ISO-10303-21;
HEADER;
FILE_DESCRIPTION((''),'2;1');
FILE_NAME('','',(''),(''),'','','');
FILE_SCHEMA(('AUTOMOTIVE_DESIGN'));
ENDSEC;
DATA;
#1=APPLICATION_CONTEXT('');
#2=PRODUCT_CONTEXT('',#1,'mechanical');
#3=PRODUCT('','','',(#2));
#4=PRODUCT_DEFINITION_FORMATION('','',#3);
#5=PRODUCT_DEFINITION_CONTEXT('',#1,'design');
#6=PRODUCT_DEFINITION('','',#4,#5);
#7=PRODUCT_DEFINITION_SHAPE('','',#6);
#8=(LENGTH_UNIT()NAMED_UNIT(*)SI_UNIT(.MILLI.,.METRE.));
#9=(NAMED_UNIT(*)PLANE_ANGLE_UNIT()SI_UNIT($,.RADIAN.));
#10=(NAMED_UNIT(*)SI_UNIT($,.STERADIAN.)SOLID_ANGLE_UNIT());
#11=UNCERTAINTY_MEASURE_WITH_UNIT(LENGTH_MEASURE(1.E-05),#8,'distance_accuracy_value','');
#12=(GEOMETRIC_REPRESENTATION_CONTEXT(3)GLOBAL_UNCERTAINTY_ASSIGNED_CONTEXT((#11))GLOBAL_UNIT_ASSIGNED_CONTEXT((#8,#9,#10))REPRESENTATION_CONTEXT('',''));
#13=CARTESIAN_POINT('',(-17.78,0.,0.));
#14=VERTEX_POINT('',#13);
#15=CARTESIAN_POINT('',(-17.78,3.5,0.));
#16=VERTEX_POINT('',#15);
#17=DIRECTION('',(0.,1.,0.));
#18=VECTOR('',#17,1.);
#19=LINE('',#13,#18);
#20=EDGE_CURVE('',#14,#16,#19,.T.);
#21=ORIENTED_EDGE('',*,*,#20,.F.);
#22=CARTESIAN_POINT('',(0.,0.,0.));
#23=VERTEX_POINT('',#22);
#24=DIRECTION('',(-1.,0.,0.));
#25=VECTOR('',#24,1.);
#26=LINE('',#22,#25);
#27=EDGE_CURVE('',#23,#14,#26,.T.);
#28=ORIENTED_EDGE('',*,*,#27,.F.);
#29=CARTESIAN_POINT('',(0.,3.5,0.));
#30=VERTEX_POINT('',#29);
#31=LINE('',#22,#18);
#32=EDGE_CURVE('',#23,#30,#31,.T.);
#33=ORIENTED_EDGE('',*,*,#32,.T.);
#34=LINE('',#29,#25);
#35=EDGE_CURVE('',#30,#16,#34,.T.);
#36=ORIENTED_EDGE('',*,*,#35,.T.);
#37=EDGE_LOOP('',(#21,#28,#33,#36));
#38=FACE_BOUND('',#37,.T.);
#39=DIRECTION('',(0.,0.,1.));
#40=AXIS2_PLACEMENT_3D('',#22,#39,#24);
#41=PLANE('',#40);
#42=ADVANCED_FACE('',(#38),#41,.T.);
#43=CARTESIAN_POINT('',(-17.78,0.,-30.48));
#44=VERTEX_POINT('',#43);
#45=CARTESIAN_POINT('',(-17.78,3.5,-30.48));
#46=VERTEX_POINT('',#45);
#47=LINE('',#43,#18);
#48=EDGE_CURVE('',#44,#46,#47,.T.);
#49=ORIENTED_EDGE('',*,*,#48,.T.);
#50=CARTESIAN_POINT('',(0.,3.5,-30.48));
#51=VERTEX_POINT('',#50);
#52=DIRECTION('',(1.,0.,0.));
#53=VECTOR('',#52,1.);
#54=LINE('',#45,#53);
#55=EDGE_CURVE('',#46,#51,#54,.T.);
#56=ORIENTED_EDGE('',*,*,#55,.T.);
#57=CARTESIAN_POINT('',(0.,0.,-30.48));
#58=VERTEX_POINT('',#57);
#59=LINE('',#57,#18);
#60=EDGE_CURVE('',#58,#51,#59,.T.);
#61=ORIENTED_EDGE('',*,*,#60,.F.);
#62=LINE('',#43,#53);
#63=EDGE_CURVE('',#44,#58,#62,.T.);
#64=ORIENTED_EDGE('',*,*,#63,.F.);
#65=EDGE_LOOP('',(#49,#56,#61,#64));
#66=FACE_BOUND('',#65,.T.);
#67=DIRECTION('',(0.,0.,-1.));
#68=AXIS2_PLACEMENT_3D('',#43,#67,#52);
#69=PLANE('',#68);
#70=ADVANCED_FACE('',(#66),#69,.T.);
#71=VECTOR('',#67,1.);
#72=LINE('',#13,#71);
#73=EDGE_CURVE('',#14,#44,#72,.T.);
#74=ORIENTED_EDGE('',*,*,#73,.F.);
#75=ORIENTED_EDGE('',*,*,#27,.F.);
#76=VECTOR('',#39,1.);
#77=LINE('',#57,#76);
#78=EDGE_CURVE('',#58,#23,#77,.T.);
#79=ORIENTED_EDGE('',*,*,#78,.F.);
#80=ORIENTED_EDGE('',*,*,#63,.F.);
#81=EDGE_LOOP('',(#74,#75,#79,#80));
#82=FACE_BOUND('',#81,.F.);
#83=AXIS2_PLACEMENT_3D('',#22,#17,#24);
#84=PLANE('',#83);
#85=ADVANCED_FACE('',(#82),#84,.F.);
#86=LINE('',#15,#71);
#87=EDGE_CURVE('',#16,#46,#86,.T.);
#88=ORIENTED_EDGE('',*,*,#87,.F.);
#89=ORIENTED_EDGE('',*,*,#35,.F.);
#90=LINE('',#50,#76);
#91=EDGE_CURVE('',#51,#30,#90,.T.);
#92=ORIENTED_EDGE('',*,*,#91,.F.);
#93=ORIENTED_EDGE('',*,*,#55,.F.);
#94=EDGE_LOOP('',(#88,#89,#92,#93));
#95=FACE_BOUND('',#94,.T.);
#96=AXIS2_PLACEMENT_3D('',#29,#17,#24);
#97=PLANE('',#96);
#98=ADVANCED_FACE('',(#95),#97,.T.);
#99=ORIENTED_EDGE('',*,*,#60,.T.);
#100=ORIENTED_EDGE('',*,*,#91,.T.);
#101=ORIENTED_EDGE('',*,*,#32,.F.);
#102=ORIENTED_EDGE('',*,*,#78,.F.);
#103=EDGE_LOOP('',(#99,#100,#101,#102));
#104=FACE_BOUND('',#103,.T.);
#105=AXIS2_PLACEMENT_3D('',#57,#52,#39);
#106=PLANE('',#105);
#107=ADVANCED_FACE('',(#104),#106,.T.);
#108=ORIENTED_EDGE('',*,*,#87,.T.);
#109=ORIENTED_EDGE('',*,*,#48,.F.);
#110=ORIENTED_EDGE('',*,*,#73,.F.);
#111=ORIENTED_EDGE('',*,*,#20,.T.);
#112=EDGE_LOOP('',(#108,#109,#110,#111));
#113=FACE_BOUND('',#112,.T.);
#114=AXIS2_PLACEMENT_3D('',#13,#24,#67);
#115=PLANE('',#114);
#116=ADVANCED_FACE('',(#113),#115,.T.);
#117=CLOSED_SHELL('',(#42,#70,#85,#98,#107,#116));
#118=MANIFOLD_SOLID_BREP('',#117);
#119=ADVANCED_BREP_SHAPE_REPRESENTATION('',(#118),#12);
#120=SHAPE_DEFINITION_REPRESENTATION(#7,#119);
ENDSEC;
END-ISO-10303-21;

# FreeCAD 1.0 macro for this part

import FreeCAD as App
import Part
import Sketcher
Q = App.Units.Quantity

doc = App.newDocument("Part")
params = doc.addObject("Spreadsheet::Sheet", "Params")
for row, (alias, value) in enumerate([
    ("sketch1_width", "0.7 in"),
    ("sketch1_height", "1.2 in"),
    ("pad1_length", "0.1377953 in"),
], start=1):
    params.set(f"A{row}", alias)
    params.set(f"B{row}", "=" + value)
    params.setAlias(f"B{row}", alias)

body = doc.addObject("PartDesign::Body", "Body")

sketch1 = body.newObject("Sketcher::SketchObject", "Sketch")
sketch1.AttachmentSupport = (doc.getObject("XZ_Plane"), [""])
sketch1.MapMode = "FlatFace"
sketch1.addGeometry([
    Part.LineSegment(App.Vector(-18, 0, 0), App.Vector(0, 0, 0)),
    Part.LineSegment(App.Vector(0, 0, 0), App.Vector(0, -30, 0)),
    Part.LineSegment(App.Vector(0, -30, 0), App.Vector(-18, -30, 0)),
    Part.LineSegment(App.Vector(-18, -30, 0), App.Vector(-18, 0, 0)),
], False)
sketch1.addConstraint([
    Sketcher.Constraint("Coincident", 0, 2, 1, 1),
    Sketcher.Constraint("Coincident", 1, 2, 2, 1),
    Sketcher.Constraint("Coincident", 2, 2, 3, 1),
    Sketcher.Constraint("Coincident", 3, 2, 0, 1),
    Sketcher.Constraint("Horizontal", 0),
    Sketcher.Constraint("Vertical", 1),
    Sketcher.Constraint("Horizontal", 2),
    Sketcher.Constraint("Vertical", 3),
    Sketcher.Constraint("Coincident", 0, 2, -1, 1),
    Sketcher.Constraint("DistanceX", 0, 1, 0, 2, Q("0.7 in")),
    Sketcher.Constraint("DistanceY", 1, 2, 1, 1, Q("1.2 in")),
])
sketch1.setExpression("Constraints[9]", "Params.sketch1_width")
sketch1.setExpression("Constraints[10]", "Params.sketch1_height")
pad1 = body.newObject("PartDesign::Pad", "Pad")
pad1.Profile = sketch1
pad1.setExpression("Length", "Params.pad1_length")
pad1.Reversed = True

doc.recompute()
